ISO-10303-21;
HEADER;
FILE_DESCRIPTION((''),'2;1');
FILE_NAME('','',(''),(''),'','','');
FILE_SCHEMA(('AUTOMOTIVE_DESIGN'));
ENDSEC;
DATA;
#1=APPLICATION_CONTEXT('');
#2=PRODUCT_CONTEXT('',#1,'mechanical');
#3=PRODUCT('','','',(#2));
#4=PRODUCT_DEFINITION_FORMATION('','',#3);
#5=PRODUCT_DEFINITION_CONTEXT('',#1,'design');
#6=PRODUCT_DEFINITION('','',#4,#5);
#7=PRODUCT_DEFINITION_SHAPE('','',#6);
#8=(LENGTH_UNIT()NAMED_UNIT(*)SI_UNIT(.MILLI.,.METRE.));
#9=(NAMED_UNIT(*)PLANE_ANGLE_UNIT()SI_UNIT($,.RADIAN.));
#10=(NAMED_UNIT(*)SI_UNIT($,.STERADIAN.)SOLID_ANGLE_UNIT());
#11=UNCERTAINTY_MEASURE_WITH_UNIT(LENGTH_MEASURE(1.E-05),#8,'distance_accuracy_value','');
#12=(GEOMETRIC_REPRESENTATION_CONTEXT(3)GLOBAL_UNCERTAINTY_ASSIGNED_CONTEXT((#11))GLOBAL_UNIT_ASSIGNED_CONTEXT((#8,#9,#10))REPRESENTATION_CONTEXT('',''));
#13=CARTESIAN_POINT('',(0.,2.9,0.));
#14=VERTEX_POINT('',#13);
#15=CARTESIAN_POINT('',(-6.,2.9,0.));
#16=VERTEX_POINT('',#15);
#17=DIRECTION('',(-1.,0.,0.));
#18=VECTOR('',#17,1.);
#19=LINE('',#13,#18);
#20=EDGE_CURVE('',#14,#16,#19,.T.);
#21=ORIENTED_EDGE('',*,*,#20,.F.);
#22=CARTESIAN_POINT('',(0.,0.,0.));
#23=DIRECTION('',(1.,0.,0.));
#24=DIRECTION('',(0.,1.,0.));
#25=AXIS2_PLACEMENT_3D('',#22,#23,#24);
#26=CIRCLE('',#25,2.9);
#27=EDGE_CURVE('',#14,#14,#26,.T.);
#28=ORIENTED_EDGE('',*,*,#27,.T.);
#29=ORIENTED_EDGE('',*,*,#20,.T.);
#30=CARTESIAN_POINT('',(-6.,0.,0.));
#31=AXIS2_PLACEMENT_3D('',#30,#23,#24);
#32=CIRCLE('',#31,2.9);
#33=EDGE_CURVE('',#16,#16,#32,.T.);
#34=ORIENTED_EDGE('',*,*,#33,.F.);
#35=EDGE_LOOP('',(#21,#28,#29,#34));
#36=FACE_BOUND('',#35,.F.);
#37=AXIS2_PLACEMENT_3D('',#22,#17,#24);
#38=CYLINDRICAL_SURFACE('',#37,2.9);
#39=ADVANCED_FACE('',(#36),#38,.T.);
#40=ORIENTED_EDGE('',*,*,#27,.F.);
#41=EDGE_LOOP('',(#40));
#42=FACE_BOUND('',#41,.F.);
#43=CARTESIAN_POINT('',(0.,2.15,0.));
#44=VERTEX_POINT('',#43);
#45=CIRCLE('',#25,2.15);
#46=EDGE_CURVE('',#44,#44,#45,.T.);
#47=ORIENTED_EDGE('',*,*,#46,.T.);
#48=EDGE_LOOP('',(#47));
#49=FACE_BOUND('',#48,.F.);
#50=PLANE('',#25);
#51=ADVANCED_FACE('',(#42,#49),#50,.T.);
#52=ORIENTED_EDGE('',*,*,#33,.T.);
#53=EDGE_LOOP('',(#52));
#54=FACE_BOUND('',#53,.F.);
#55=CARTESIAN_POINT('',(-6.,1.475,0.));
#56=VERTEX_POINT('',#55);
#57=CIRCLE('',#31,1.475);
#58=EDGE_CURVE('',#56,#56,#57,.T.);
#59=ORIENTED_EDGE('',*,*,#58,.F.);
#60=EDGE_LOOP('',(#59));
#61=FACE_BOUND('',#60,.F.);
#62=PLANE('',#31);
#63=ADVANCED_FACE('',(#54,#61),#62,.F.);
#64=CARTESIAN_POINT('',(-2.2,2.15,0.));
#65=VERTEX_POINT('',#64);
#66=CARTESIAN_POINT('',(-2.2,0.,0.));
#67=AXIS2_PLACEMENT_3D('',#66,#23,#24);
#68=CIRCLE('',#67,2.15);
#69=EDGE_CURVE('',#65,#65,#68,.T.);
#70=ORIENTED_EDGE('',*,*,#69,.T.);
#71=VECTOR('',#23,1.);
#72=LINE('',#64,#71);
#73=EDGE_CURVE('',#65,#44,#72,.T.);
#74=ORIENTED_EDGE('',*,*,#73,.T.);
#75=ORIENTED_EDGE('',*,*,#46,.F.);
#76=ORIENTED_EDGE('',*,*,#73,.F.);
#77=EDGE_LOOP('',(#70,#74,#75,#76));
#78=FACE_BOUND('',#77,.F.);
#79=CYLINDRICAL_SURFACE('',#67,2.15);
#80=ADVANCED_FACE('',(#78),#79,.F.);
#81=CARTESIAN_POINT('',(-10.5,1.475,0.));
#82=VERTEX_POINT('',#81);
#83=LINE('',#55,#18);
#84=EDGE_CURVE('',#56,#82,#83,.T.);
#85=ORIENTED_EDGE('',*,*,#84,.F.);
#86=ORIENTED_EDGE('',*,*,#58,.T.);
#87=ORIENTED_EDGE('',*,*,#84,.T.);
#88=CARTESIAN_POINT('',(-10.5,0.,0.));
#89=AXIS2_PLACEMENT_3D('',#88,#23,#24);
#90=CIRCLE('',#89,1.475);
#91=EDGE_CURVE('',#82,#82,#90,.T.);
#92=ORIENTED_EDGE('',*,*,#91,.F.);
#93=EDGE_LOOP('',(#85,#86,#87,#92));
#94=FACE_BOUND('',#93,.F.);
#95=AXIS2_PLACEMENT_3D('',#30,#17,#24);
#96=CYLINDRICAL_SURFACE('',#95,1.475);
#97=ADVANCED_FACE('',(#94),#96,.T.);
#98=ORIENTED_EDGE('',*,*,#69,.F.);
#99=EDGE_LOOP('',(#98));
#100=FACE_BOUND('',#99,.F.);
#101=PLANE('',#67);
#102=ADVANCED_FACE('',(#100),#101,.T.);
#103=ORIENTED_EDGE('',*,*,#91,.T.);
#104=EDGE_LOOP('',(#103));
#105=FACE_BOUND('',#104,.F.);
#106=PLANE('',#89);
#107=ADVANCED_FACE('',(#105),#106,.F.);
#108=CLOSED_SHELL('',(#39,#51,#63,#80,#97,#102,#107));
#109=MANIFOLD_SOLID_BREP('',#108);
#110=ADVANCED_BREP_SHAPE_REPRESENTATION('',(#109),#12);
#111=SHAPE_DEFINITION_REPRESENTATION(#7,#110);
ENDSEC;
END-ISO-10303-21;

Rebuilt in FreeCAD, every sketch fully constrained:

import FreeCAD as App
import Part
import Sketcher
Q = App.Units.Quantity

doc = App.newDocument("Part")
body = doc.addObject("PartDesign::Body", "Body")

# Sketch on XY plane
sketch1 = body.newObject("Sketcher::SketchObject", "Sketch")
sketch1.AttachmentSupport = (doc.getObject("XY_Plane"), [""])
sketch1.MapMode = "FlatFace"
sketch1.addGeometry(Part.LineSegment(App.Vector(-10.5, 0, 0), App.Vector(-2.2, 0, 0)), False)
sketch1.addGeometry(Part.LineSegment(App.Vector(-2.2, 0, 0), App.Vector(-2.2, 2.1, 0)), False)
sketch1.addGeometry(Part.LineSegment(App.Vector(-2.2, 2.1, 0), App.Vector(0, 2.1, 0)), False)
sketch1.addGeometry(Part.LineSegment(App.Vector(0, 2.1, 0), App.Vector(0, 2.9, 0)), False)
sketch1.addGeometry(Part.LineSegment(App.Vector(0, 2.9, 0), App.Vector(-6, 2.9, 0)), False)
sketch1.addGeometry(Part.LineSegment(App.Vector(-6, 2.9, 0), App.Vector(-6, 1.5, 0)), False)
sketch1.addGeometry(Part.LineSegment(App.Vector(-6, 1.5, 0), App.Vector(-10.5, 1.5, 0)), False)
sketch1.addGeometry(Part.LineSegment(App.Vector(-10.5, 1.5, 0), App.Vector(-10.5, 0, 0)), False)
sketch1.addConstraint(Sketcher.Constraint("Coincident", 0, 2, 1, 1))
sketch1.addConstraint(Sketcher.Constraint("Coincident", 1, 2, 2, 1))
sketch1.addConstraint(Sketcher.Constraint("Coincident", 2, 2, 3, 1))
sketch1.addConstraint(Sketcher.Constraint("Coincident", 3, 2, 4, 1))
sketch1.addConstraint(Sketcher.Constraint("Coincident", 4, 2, 5, 1))
sketch1.addConstraint(Sketcher.Constraint("Coincident", 5, 2, 6, 1))
sketch1.addConstraint(Sketcher.Constraint("Coincident", 6, 2, 7, 1))
sketch1.addConstraint(Sketcher.Constraint("Coincident", 7, 2, 0, 1))
sketch1.addConstraint(Sketcher.Constraint("Horizontal", 0))
sketch1.addConstraint(Sketcher.Constraint("Vertical", 1))
sketch1.addConstraint(Sketcher.Constraint("Horizontal", 2))
sketch1.addConstraint(Sketcher.Constraint("Vertical", 3))
sketch1.addConstraint(Sketcher.Constraint("Horizontal", 4))
sketch1.addConstraint(Sketcher.Constraint("Vertical", 5))
sketch1.addConstraint(Sketcher.Constraint("Horizontal", 6))
sketch1.addConstraint(Sketcher.Constraint("Vertical", 7))
sketch1.addConstraint(Sketcher.Constraint("PointOnObject", 0, 2, -1))
sketch1.addConstraint(Sketcher.Constraint("PointOnObject", 2, 2, -2))
sketch1.addConstraint(Sketcher.Constraint("DistanceX", 4, 2, 4, 1, Q("6 mm")))
sketch1.addConstraint(Sketcher.Constraint("DistanceX", 2, 1, 2, 2, Q("2.2 mm")))
sketch1.addConstraint(Sketcher.Constraint("DistanceX", 6, 2, 6, 1, Q("4.5 mm")))
sketch1.addConstraint(Sketcher.Constraint("DistanceY", 1, 1, 1, 2, Q("2.15 mm")))
sketch1.addConstraint(Sketcher.Constraint("DistanceY", 3, 1, 3, 2, Q("0.75 mm")))
sketch1.addConstraint(Sketcher.Constraint("DistanceY", 5, 2, 5, 1, Q("1.425 mm")))
revolution = body.newObject("PartDesign::Revolution", "Revolution")
revolution.Profile = sketch1
revolution.ReferenceAxis = (sketch1, ["H_Axis"])
revolution.Angle = 360

doc.recompute()
